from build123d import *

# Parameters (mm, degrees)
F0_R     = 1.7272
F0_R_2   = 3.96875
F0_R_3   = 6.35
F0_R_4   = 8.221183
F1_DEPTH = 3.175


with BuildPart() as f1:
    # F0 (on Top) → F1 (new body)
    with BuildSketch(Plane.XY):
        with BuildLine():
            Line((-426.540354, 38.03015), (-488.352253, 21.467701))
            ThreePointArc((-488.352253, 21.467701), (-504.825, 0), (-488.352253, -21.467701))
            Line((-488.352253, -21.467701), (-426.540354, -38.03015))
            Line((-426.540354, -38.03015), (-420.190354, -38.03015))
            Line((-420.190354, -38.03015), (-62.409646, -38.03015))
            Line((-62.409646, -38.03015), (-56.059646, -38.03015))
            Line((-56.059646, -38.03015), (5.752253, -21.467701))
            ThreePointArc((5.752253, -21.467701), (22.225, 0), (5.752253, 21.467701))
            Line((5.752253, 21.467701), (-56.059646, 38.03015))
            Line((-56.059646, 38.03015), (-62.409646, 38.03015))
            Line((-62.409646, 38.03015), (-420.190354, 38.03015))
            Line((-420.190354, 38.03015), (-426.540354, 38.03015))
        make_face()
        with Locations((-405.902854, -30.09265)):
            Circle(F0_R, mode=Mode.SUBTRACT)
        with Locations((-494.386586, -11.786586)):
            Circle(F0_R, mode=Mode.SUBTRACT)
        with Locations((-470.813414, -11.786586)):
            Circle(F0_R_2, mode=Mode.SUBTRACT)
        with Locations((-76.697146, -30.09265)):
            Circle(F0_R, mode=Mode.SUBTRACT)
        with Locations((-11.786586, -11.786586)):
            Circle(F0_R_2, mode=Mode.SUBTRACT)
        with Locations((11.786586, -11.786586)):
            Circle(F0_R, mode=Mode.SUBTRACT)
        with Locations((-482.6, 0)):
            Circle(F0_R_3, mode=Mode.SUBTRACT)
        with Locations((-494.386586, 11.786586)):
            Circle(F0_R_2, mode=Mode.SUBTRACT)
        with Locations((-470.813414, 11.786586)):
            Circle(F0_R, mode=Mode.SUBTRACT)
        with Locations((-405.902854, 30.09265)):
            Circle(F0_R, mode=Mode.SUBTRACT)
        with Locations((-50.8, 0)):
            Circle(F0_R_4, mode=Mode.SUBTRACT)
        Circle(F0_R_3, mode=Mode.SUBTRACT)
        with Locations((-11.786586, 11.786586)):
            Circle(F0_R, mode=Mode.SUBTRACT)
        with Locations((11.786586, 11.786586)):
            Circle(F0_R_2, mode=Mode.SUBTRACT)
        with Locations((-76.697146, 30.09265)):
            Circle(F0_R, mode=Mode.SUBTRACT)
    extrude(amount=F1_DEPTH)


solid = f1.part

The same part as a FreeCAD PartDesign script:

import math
import FreeCAD as App
import Part
import Sketcher
Q = App.Units.Quantity

doc = App.newDocument("Part")
body = doc.addObject("PartDesign::Body", "Body")

# Sketch on XY plane
sketch1 = doc.addObject("Sketcher::SketchObject", "Sketch")
body.addObject(sketch1)
sketch1.AttachmentSupport = (doc.XY_Plane, [""])
sketch1.MapMode = "FlatFace"
sketch1.addGeometry(Part.LineSegment(App.Vector(-426.540354, 38.03015, 0), App.Vector(-488.352253, 21.467701, 0)), False)
sketch1.addGeometry(Part.ArcOfCircle(Part.Circle(App.Vector(-482.600001, 0, 0), App.Vector(0, 0, 1), 22.224999), math.radians(104.999998), math.radians(255.000002)), False)
sketch1.addGeometry(Part.LineSegment(App.Vector(-488.352253, -21.467701, 0), App.Vector(-426.540354, -38.03015, 0)), False)
sketch1.addGeometry(Part.LineSegment(App.Vector(-426.540354, -38.03015, 0), App.Vector(-56.059646, -38.03015, 0)), False)
sketch1.addGeometry(Part.LineSegment(App.Vector(-56.059646, -38.03015, 0), App.Vector(5.752253, -21.467701, 0)), False)
sketch1.addGeometry(Part.ArcOfCircle(Part.Circle(App.Vector(0.000001, 0, 0), App.Vector(0, 0, 1), 22.224999), math.radians(-75.000002), math.radians(75.000002)), False)
sketch1.addGeometry(Part.LineSegment(App.Vector(5.752253, 21.467701, 0), App.Vector(-56.059646, 38.03015, 0)), False)
sketch1.addGeometry(Part.LineSegment(App.Vector(-56.059646, 38.03015, 0), App.Vector(-426.540354, 38.03015, 0)), False)
sketch1.addGeometry(Part.Circle(App.Vector(-405.902854, -30.09265, 0), App.Vector(0, 0, 1), 1.7272), False)
sketch1.addGeometry(Part.Circle(App.Vector(-494.386586, -11.786586, 0), App.Vector(0, 0, 1), 1.7272), False)
sketch1.addGeometry(Part.Circle(App.Vector(-470.813414, -11.786586, 0), App.Vector(0, 0, 1), 3.96875), False)
sketch1.addGeometry(Part.Circle(App.Vector(-482.6, 0, 0), App.Vector(0, 0, 1), 6.35), False)
sketch1.addGeometry(Part.Circle(App.Vector(-76.697146, -30.09265, 0), App.Vector(0, 0, 1), 1.7272), False)
sketch1.addGeometry(Part.Circle(App.Vector(-11.786586, -11.786586, 0), App.Vector(0, 0, 1), 3.96875), False)
sketch1.addGeometry(Part.Circle(App.Vector(11.786586, -11.786586, 0), App.Vector(0, 0, 1), 1.7272), False)
sketch1.addGeometry(Part.Circle(App.Vector(-50.8, 0, 0), App.Vector(0, 0, 1), 8.221183), False)
sketch1.addGeometry(Part.Circle(App.Vector(0, 0, 0), App.Vector(0, 0, 1), 6.35), False)
sketch1.addGeometry(Part.Circle(App.Vector(-494.386586, 11.786586, 0), App.Vector(0, 0, 1), 3.96875), False)
sketch1.addGeometry(Part.Circle(App.Vector(-470.813414, 11.786586, 0), App.Vector(0, 0, 1), 1.7272), False)
sketch1.addGeometry(Part.Circle(App.Vector(-405.902854, 30.09265, 0), App.Vector(0, 0, 1), 1.7272), False)
sketch1.addGeometry(Part.Circle(App.Vector(-11.786586, 11.786586, 0), App.Vector(0, 0, 1), 1.7272), False)
sketch1.addGeometry(Part.Circle(App.Vector(11.786586, 11.786586, 0), App.Vector(0, 0, 1), 3.96875), False)
sketch1.addGeometry(Part.Circle(App.Vector(-76.697146, 30.09265, 0), App.Vector(0, 0, 1), 1.7272), False)
sketch1.addConstraint(Sketcher.Constraint("Tangent", 0, 2, 1, 1))
sketch1.addConstraint(Sketcher.Constraint("Tangent", 1, 2, 2, 1))
sketch1.addConstraint(Sketcher.Constraint("Coincident", 2, 2, 3, 1))
sketch1.addConstraint(Sketcher.Constraint("Coincident", 3, 2, 4, 1))
sketch1.addConstraint(Sketcher.Constraint("Tangent", 4, 2, 5, 1))
sketch1.addConstraint(Sketcher.Constraint("Tangent", 5, 2, 6, 1))
sketch1.addConstraint(Sketcher.Constraint("Coincident", 6, 2, 7, 1))
sketch1.addConstraint(Sketcher.Constraint("Coincident", 7, 2, 0, 1))
sketch1.addConstraint(Sketcher.Constraint("Horizontal", 3))
sketch1.addConstraint(Sketcher.Constraint("Horizontal", 7))
sketch1.addConstraint(Sketcher.Constraint("Coincident", 5, 3, -1, 1))
sketch1.addConstraint(Sketcher.Constraint("Coincident", 16, 3, -1, 1))
sketch1.addConstraint(Sketcher.Constraint("Coincident", 11, 3, 1, 3))
sketch1.addConstraint(Sketcher.Constraint("Equal", 1, 5))
sketch1.addConstraint(Sketcher.Constraint("Equal", 8, 9))
sketch1.addConstraint(Sketcher.Constraint("Equal", 9, 12))
sketch1.addConstraint(Sketcher.Constraint("Equal", 10, 13))
sketch1.addConstraint(Sketcher.Constraint("Equal", 12, 14))
sketch1.addConstraint(Sketcher.Constraint("Equal", 11, 16))
sketch1.addConstraint(Sketcher.Constraint("Equal", 13, 17))
sketch1.addConstraint(Sketcher.Constraint("Equal", 14, 18))
sketch1.addConstraint(Sketcher.Constraint("Equal", 18, 19))
sketch1.addConstraint(Sketcher.Constraint("Equal", 19, 20))
sketch1.addConstraint(Sketcher.Constraint("Equal", 17, 21))
sketch1.addConstraint(Sketcher.Constraint("Equal", 20, 22))
sketch1.addConstraint(Sketcher.Constraint("Symmetric", 14, 3, 20, 3, -1, 1))
sketch1.addConstraint(Sketcher.Constraint("Symmetric", 13, 3, 21, 3, -1, 1))
sketch1.addConstraint(Sketcher.Constraint("Symmetric", 13, 3, 14, 3, -2))
sketch1.addConstraint(Sketcher.Constraint("Symmetric", 9, 3, 17, 3, -1))
sketch1.addConstraint(Sketcher.Constraint("Symmetric", 10, 3, 18, 3, -1))
sketch1.addConstraint(Sketcher.Constraint("Symmetric", 8, 3, 19, 3, -1))
sketch1.addConstraint(Sketcher.Constraint("Symmetric", 12, 3, 22, 3, -1))
sketch1.addConstraint(Sketcher.Constraint("Symmetric", 0, 2, 1, 2, -1))
sketch1.addConstraint(Sketcher.Constraint("Symmetric", 3, 2, 6, 2, -1))
sketch1.addConstraint(Sketcher.Constraint("PointOnObject", 15, 3, -1))
sketch1.addConstraint(Sketcher.Constraint("Parallel", 0, 4))
sketch1.addConstraint(Sketcher.Constraint("Horizontal", 9, 3, 10, 3))
sketch1.addConstraint(Sketcher.Constraint("Horizontal", 8, 3, 12, 3))
sketch1.addConstraint(Sketcher.Constraint("Horizontal", 10, 3, 13, 3))
sketch1.addConstraint(Sketcher.Constraint("Diameter", 11, Q("0.5 in")))
sketch1.addConstraint(Sketcher.Constraint("Diameter", 8, Q("0.136 in")))
sketch1.addConstraint(Sketcher.Constraint("Diameter", 10, Q("0.3125 in")))
sketch1.addConstraint(Sketcher.Constraint("DistanceX", 1, 3, -1, 1, Q("19 in")))
sketch1.addConstraint(Sketcher.Constraint("DistanceX", 15, 3, -1, 1, Q("2 in")))
sketch1.addConstraint(Sketcher.Constraint("Angle", 0, Q("-164.999999 deg")))
sketch1.addConstraint(Sketcher.Constraint("Radius", 1, Q("0.875 in")))
sketch1.addConstraint(Sketcher.Constraint("DistanceX", 10, 3, 14, 3, Q("19 in")))
sketch1.addConstraint(Sketcher.Constraint("DistanceX", 2, 2, 8, 3, Q("0.8125 in")))
sketch1.addConstraint(Sketcher.Constraint("DistanceY", 2, 2, 8, 3, Q("0.3125 in")))
sketch1.addConstraint(Sketcher.Constraint("DistanceX", 12, 3, 3, 2, Q("0.8125 in")))
sketch1.addConstraint(Sketcher.Constraint("Diameter", 15, 16.442366))
sketch1.addConstraint(Sketcher.Constraint("DistanceY", 8, 3, 19, 3, Q("2.3695 in")))
sketch1.addConstraint(Sketcher.Constraint("DistanceX", 9, 3, 10, 3, 23.573172))
sketch1.addConstraint(Sketcher.Constraint("DistanceX", 10, 3, 8, 3, 64.91056))
sketch1.addConstraint(Sketcher.Constraint("DistanceY", 9, 3, 17, 3, 23.573172))
pad1 = doc.addObject("PartDesign::Pad", "Pad")
body.addObject(pad1)
pad1.Profile = sketch1
pad1.Length = Q("0.125 in")

doc.recompute()
